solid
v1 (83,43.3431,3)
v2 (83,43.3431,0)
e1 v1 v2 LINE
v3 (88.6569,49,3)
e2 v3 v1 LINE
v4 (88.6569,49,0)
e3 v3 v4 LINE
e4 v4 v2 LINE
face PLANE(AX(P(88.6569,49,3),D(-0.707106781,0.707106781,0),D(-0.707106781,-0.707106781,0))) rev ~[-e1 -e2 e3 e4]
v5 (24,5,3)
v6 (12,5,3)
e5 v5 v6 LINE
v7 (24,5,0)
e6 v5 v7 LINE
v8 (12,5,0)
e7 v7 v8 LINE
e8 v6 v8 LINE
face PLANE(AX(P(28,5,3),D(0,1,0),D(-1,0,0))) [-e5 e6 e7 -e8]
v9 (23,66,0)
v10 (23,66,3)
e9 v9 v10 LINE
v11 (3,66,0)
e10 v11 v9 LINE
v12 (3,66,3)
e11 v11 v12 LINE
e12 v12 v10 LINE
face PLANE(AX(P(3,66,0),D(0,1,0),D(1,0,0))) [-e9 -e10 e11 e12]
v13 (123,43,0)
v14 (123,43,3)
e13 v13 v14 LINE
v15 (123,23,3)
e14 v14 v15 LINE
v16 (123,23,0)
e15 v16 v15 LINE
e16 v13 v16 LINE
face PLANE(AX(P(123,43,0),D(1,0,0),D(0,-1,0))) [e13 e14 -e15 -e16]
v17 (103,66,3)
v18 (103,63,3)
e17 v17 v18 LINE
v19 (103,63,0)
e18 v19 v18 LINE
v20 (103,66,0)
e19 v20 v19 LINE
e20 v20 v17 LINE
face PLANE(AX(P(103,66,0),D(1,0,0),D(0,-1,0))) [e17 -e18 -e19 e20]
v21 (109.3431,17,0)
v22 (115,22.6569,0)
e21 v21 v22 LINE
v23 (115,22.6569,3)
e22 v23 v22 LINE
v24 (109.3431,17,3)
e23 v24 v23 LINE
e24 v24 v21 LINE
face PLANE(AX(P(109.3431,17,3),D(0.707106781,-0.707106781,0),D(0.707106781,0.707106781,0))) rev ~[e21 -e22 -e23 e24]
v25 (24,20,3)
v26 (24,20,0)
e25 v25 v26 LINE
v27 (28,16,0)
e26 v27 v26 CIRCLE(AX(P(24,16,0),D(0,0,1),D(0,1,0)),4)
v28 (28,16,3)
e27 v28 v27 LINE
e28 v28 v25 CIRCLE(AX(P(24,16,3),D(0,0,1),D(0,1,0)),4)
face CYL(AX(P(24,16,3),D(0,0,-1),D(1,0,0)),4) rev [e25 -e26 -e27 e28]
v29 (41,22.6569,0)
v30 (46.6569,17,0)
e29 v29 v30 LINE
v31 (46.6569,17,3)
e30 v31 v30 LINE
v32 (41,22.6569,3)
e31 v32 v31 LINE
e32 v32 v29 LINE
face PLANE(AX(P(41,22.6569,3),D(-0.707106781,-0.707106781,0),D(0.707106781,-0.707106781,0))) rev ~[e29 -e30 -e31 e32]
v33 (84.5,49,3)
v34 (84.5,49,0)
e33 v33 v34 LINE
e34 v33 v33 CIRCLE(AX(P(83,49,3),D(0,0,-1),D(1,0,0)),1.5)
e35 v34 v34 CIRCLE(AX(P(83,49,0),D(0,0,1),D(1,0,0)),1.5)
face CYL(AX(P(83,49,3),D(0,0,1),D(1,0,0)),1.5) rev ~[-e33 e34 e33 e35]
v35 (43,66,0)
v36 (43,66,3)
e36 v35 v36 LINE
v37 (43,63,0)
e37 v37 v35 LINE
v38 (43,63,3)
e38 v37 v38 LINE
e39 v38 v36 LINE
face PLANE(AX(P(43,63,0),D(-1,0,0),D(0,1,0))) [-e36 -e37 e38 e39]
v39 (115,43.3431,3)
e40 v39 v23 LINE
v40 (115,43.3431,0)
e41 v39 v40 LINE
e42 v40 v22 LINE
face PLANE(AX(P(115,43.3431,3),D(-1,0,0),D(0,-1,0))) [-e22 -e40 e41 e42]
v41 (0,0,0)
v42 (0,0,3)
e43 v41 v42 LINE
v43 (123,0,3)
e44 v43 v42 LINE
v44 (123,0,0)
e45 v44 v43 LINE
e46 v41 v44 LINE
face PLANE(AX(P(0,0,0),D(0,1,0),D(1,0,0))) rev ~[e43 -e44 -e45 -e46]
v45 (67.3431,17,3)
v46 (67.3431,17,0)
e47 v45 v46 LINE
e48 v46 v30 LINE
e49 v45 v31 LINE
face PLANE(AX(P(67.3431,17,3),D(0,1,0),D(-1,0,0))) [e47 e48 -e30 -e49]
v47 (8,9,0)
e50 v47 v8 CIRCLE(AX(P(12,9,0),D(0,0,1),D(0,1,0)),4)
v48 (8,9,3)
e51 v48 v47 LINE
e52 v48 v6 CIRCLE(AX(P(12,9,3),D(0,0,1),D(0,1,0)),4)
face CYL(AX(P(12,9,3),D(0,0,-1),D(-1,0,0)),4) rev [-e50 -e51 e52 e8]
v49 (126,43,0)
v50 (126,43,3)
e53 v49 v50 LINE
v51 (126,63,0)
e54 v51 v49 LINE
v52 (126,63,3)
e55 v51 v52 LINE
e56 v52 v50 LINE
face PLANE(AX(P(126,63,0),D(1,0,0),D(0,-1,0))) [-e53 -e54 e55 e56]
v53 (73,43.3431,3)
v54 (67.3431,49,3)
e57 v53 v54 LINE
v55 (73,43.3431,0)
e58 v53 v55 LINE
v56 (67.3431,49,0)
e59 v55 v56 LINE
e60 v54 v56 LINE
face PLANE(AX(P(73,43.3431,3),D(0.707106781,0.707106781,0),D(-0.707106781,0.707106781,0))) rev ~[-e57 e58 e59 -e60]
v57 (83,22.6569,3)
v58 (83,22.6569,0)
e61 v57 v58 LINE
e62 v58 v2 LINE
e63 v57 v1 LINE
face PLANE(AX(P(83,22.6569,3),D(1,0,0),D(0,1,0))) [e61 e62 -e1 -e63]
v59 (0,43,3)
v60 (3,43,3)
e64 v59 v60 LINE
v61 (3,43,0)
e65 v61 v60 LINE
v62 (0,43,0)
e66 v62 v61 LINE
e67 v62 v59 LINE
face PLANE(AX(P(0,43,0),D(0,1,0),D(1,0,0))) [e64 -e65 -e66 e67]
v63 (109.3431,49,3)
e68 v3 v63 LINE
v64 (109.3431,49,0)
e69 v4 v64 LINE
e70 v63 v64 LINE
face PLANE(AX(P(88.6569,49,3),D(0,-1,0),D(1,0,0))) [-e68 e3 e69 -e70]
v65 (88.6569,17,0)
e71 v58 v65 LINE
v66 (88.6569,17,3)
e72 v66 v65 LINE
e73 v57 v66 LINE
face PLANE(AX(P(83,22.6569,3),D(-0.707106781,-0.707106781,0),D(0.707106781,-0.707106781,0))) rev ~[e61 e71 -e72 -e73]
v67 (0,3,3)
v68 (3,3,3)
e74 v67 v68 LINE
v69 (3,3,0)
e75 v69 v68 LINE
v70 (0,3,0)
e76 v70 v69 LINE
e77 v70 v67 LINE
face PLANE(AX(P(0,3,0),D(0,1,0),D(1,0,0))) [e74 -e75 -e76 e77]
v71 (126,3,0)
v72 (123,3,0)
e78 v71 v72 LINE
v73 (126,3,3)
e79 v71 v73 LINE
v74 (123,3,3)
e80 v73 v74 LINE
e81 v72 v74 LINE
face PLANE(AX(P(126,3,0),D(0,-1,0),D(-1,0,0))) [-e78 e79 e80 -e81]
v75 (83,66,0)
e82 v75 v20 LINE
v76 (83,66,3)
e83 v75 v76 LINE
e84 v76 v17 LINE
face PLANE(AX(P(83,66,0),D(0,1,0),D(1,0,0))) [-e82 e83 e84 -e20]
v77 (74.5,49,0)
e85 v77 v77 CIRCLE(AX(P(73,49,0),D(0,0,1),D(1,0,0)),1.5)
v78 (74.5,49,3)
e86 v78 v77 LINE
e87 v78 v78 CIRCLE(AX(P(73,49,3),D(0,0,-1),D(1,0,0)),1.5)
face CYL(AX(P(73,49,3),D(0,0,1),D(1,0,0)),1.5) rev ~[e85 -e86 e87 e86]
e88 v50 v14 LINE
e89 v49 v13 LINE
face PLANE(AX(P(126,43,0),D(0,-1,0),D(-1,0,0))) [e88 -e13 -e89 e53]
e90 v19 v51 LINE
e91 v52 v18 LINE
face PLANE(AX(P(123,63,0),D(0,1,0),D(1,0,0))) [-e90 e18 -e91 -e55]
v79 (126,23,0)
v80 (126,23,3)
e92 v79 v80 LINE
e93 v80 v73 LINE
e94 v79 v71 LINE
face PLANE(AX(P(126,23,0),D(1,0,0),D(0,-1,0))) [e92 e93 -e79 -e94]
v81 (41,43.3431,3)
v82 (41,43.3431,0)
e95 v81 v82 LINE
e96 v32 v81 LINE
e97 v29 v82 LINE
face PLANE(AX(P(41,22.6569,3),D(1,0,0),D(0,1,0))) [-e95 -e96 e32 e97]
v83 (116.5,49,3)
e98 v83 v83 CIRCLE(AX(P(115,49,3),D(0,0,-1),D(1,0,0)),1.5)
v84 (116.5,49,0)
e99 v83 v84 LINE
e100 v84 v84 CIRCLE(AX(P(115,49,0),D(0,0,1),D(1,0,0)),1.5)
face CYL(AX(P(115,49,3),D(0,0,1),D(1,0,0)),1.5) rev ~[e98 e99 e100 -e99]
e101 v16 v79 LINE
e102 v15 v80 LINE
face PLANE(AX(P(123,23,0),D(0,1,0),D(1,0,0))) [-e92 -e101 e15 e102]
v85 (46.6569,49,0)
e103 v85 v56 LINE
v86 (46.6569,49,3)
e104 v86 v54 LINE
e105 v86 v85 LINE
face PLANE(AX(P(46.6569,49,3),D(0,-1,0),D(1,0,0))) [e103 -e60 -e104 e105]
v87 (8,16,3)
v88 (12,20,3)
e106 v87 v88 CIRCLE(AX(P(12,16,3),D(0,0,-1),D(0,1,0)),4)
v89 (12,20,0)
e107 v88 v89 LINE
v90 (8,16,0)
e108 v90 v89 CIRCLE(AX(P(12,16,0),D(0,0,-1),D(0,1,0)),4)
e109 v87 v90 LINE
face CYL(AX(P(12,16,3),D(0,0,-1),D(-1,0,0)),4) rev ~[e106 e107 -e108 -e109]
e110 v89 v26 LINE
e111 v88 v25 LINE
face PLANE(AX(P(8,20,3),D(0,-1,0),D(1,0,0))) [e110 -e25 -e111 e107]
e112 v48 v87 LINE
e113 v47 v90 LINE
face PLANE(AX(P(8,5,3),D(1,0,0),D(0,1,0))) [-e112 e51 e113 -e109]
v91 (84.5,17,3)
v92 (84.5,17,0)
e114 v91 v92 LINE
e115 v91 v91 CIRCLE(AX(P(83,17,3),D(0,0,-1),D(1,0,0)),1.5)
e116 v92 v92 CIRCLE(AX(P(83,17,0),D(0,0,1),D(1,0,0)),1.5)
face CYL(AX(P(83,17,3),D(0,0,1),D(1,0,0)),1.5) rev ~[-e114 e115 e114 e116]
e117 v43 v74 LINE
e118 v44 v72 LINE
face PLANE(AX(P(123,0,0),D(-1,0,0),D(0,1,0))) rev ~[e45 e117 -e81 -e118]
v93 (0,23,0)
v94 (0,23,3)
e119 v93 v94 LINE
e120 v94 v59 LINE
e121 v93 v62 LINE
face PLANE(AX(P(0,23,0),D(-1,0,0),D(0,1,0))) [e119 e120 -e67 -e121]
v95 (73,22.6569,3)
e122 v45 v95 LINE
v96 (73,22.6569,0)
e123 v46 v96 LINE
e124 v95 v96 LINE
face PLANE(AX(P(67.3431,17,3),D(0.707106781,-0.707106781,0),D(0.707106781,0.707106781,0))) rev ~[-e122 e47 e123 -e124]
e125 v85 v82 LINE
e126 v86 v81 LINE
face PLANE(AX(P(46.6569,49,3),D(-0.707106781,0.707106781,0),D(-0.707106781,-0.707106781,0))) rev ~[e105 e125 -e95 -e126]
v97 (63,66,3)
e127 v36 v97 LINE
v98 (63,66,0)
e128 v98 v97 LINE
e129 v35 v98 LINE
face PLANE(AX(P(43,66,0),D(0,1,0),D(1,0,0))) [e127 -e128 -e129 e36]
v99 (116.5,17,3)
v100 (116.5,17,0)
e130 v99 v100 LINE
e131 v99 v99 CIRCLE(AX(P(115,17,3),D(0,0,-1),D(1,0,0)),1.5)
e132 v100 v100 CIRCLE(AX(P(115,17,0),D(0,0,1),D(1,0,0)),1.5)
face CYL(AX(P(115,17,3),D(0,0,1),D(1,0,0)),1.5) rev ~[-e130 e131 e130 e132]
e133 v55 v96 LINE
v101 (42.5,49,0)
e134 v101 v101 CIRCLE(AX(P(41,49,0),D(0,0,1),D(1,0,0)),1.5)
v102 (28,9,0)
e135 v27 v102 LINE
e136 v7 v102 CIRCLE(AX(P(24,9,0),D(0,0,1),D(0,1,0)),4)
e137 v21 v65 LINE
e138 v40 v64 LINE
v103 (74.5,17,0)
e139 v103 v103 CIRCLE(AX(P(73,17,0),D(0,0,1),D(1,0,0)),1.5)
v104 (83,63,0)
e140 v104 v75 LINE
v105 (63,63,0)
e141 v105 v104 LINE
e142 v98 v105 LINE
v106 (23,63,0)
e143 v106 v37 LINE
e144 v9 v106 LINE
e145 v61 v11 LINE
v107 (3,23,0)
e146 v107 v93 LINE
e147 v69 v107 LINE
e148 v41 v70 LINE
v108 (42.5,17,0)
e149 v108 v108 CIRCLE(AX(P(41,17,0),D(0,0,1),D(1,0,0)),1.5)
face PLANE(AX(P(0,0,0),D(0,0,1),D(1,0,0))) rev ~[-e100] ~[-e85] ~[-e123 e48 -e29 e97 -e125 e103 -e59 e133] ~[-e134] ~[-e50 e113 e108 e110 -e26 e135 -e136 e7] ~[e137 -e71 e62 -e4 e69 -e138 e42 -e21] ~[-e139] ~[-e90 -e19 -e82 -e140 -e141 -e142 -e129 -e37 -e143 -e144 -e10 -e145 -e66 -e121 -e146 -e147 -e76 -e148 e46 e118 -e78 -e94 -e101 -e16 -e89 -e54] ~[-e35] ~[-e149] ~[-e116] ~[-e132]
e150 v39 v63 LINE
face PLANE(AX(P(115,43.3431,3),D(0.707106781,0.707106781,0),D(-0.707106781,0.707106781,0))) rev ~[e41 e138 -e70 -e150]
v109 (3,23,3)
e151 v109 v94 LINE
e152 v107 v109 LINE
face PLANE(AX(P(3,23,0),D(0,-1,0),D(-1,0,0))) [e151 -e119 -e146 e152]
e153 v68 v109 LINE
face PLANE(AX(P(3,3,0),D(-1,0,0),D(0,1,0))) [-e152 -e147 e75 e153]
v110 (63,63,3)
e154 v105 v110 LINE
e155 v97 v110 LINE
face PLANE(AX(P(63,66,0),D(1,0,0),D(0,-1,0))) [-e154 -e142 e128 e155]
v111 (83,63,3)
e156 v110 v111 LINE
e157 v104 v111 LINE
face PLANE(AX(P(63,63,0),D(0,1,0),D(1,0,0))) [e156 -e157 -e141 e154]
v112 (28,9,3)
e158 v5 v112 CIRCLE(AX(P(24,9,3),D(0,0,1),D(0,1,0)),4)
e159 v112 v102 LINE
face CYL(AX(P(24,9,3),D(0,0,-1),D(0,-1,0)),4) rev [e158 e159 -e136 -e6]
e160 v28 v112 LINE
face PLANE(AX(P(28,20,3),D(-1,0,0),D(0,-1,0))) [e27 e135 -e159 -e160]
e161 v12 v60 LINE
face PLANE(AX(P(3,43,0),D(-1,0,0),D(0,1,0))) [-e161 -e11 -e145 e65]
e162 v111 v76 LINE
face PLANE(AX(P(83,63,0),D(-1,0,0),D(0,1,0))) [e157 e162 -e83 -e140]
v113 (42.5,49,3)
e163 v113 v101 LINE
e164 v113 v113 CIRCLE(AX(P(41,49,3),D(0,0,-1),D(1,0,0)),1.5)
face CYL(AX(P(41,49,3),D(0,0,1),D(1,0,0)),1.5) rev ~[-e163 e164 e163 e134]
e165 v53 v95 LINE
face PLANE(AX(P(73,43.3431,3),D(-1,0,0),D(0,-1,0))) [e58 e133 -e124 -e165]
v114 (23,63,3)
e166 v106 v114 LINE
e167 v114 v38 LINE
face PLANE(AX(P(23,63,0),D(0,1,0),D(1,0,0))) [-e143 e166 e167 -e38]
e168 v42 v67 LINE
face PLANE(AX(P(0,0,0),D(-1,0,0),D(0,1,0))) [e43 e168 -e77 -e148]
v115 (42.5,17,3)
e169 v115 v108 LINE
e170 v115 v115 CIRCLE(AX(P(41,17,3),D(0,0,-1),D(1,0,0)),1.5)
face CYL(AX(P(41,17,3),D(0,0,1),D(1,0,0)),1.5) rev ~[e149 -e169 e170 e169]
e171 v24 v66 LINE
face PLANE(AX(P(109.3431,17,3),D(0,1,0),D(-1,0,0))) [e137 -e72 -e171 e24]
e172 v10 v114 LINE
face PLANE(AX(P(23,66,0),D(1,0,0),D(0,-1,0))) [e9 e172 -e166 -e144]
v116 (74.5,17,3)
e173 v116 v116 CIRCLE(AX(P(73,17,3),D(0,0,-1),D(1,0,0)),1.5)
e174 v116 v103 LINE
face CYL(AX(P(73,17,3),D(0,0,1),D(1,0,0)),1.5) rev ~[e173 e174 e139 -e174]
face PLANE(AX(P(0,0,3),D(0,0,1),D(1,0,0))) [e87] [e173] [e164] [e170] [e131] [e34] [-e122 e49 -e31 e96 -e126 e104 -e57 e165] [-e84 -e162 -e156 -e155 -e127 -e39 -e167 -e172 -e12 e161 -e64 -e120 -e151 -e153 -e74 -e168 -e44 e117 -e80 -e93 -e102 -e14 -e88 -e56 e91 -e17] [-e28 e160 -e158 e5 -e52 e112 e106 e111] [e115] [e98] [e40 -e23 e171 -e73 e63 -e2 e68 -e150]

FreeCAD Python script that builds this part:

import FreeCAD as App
import Part
import Sketcher
Q = App.Units.Quantity


def edges_at(feature, points):
    """Names of the edges that pass closest to the given points."""
    edges = feature.Shape.Edges
    near = lambda p: min(range(len(edges)), key=lambda i: edges[i].distToShape(Part.Vertex(*p))[0])
    return sorted({f"Edge{near(p) + 1}" for p in points})

doc = App.newDocument("Part")
body = doc.addObject("PartDesign::Body", "Body")

# Sketch on XY plane
sketch1 = body.newObject("Sketcher::SketchObject", "Sketch")
sketch1.AttachmentSupport = (doc.getObject("XY_Plane"), [""])
sketch1.MapMode = "FlatFace"
sketch1.addGeometry([
    Part.LineSegment(App.Vector(0, 3, 0), App.Vector(0, 0, 0)),  # 0
    Part.LineSegment(App.Vector(0, 0, 0), App.Vector(123, 0, 0)),  # 1
    Part.LineSegment(App.Vector(123, 0, 0), App.Vector(123, 3, 0)),  # 2
    Part.LineSegment(App.Vector(123, 3, 0), App.Vector(126, 3, 0)),  # 3
    Part.LineSegment(App.Vector(126, 3, 0), App.Vector(126, 23, 0)),  # 4
    Part.LineSegment(App.Vector(126, 23, 0), App.Vector(123, 23, 0)),  # 5
    Part.LineSegment(App.Vector(123, 23, 0), App.Vector(123, 43, 0)),  # 6
    Part.LineSegment(App.Vector(123, 43, 0), App.Vector(126, 43, 0)),  # 7
    Part.LineSegment(App.Vector(126, 43, 0), App.Vector(126, 63, 0)),  # 8
    Part.LineSegment(App.Vector(126, 63, 0), App.Vector(103, 63, 0)),  # 9
    Part.LineSegment(App.Vector(103, 63, 0), App.Vector(103, 66, 0)),  # 10
    Part.LineSegment(App.Vector(103, 66, 0), App.Vector(83, 66, 0)),  # 11
    Part.LineSegment(App.Vector(83, 66, 0), App.Vector(83, 63, 0)),  # 12
    Part.LineSegment(App.Vector(83, 63, 0), App.Vector(63, 63, 0)),  # 13
    Part.LineSegment(App.Vector(63, 63, 0), App.Vector(63, 66, 0)),  # 14
    Part.LineSegment(App.Vector(63, 66, 0), App.Vector(43, 66, 0)),  # 15
    Part.LineSegment(App.Vector(43, 66, 0), App.Vector(43, 63, 0)),  # 16
    Part.LineSegment(App.Vector(43, 63, 0), App.Vector(23, 63, 0)),  # 17
    Part.LineSegment(App.Vector(23, 63, 0), App.Vector(23, 66, 0)),  # 18
    Part.LineSegment(App.Vector(23, 66, 0), App.Vector(3, 66, 0)),  # 19
    Part.LineSegment(App.Vector(3, 66, 0), App.Vector(3, 43, 0)),  # 20
    Part.LineSegment(App.Vector(3, 43, 0), App.Vector(0, 43, 0)),  # 21
    Part.LineSegment(App.Vector(0, 43, 0), App.Vector(0, 23, 0)),  # 22
    Part.LineSegment(App.Vector(0, 23, 0), App.Vector(3, 23, 0)),  # 23
    Part.LineSegment(App.Vector(3, 23, 0), App.Vector(3, 3, 0)),  # 24
    Part.LineSegment(App.Vector(3, 3, 0), App.Vector(0, 3, 0)),  # 25
], False)
sketch1.addConstraint([
    Sketcher.Constraint("Coincident", 0, 2, 1, 1),
    Sketcher.Constraint("Coincident", 1, 2, 2, 1),
    Sketcher.Constraint("Coincident", 2, 2, 3, 1),
    Sketcher.Constraint("Coincident", 3, 2, 4, 1),
    Sketcher.Constraint("Coincident", 4, 2, 5, 1),
    Sketcher.Constraint("Coincident", 5, 2, 6, 1),
    Sketcher.Constraint("Coincident", 6, 2, 7, 1),
    Sketcher.Constraint("Coincident", 7, 2, 8, 1),
    Sketcher.Constraint("Coincident", 8, 2, 9, 1),
    Sketcher.Constraint("Coincident", 9, 2, 10, 1),
    Sketcher.Constraint("Coincident", 10, 2, 11, 1),
    Sketcher.Constraint("Coincident", 11, 2, 12, 1),
    Sketcher.Constraint("Coincident", 12, 2, 13, 1),
    Sketcher.Constraint("Coincident", 13, 2, 14, 1),
    Sketcher.Constraint("Coincident", 14, 2, 15, 1),
    Sketcher.Constraint("Coincident", 15, 2, 16, 1),
    Sketcher.Constraint("Coincident", 16, 2, 17, 1),
    Sketcher.Constraint("Coincident", 17, 2, 18, 1),
    Sketcher.Constraint("Coincident", 18, 2, 19, 1),
    Sketcher.Constraint("Coincident", 19, 2, 20, 1),
    Sketcher.Constraint("Coincident", 20, 2, 21, 1),
    Sketcher.Constraint("Coincident", 21, 2, 22, 1),
    Sketcher.Constraint("Coincident", 22, 2, 23, 1),
    Sketcher.Constraint("Coincident", 23, 2, 24, 1),
    Sketcher.Constraint("Coincident", 24, 2, 25, 1),
    Sketcher.Constraint("Coincident", 25, 2, 0, 1),
    Sketcher.Constraint("Vertical", 0),
    Sketcher.Constraint("Horizontal", 1),
    Sketcher.Constraint("Vertical", 2),
    Sketcher.Constraint("Horizontal", 3),
    Sketcher.Constraint("Vertical", 4),
    Sketcher.Constraint("Horizontal", 5),
    Sketcher.Constraint("Vertical", 6),
    Sketcher.Constraint("Horizontal", 7),
    Sketcher.Constraint("Vertical", 8),
    Sketcher.Constraint("Horizontal", 9),
    Sketcher.Constraint("Vertical", 10),
    Sketcher.Constraint("Horizontal", 11),
    Sketcher.Constraint("Vertical", 12),
    Sketcher.Constraint("Horizontal", 13),
    Sketcher.Constraint("Vertical", 14),
    Sketcher.Constraint("Horizontal", 15),
    Sketcher.Constraint("Vertical", 16),
    Sketcher.Constraint("Horizontal", 17),
    Sketcher.Constraint("Vertical", 18),
    Sketcher.Constraint("Horizontal", 19),
    Sketcher.Constraint("Vertical", 20),
    Sketcher.Constraint("Horizontal", 21),
    Sketcher.Constraint("Vertical", 22),
    Sketcher.Constraint("Horizontal", 23),
    Sketcher.Constraint("Vertical", 24),
    Sketcher.Constraint("Horizontal", 25),
    Sketcher.Constraint("Coincident", 0, 2, -1, 1),
    Sketcher.Constraint("PointOnObject", 21, 2, -2),
    Sketcher.Constraint("Horizontal", 9, 2, 12, 2),
    Sketcher.Constraint("Horizontal", 11, 2, 14, 2),
    Sketcher.Constraint("Horizontal", 13, 2, 16, 2),
    Sketcher.Constraint("Horizontal", 15, 2, 18, 2),
    Sketcher.Constraint("Horizontal", 7, 2, 20, 2),
    Sketcher.Constraint("Horizontal", 5, 2, 22, 2),
    Sketcher.Constraint("Horizontal", 3, 2, 24, 2),
    Sketcher.Constraint("Vertical", 2, 2, 5, 2),
    Sketcher.Constraint("Vertical", 4, 2, 7, 2),
    Sketcher.Constraint("Vertical", 20, 2, 23, 2),
    Sketcher.Constraint("Equal", 11, 13),
    Sketcher.Constraint("Equal", 13, 15),
    Sketcher.Constraint("Equal", 15, 17),
    Sketcher.Constraint("Equal", 17, 19),
    Sketcher.Constraint("Equal", 7, 21),
    Sketcher.Constraint("Equal", 25, 0),
    Sketcher.Constraint("Equal", 19, 4),
    Sketcher.Constraint("Equal", 4, 6),
    Sketcher.Constraint("Equal", 6, 8),
    Sketcher.Constraint("Equal", 2, 10),
    Sketcher.Constraint("Equal", 9, 20),
    Sketcher.Constraint("DistanceX", 3, 1, 3, 2, Q("3 mm")),
    Sketcher.Constraint("DistanceX", 11, 2, 11, 1, Q("20 mm")),
])
pad1 = body.newObject("PartDesign::Pad", "Pad")
pad1.Profile = sketch1
pad1.Length = 3

# Sketch on XY plane
sketch2 = body.newObject("Sketcher::SketchObject", "Sketch001")
sketch2.AttachmentSupport = (doc.getObject("XY_Plane"), [""])
sketch2.MapMode = "FlatFace"
sketch2.AttachmentOffset = App.Placement(App.Vector(0, 0, 3), App.Rotation())
sketch2.addGeometry([
    Part.Circle(App.Vector(83, 49, 0), App.Vector(0, 0, 1), 1.5),  # 0
    Part.LineSegment(App.Vector(109.3, 49, 0), App.Vector(88.7, 49, 0)),  # 1
    Part.LineSegment(App.Vector(88.7, 49, 0), App.Vector(83, 43.3, 0)),  # 2
    Part.LineSegment(App.Vector(83, 43.3, 0), App.Vector(83, 22.7, 0)),  # 3
    Part.LineSegment(App.Vector(83, 22.7, 0), App.Vector(88.7, 17, 0)),  # 4
    Part.LineSegment(App.Vector(88.7, 17, 0), App.Vector(109.3, 17, 0)),  # 5
    Part.LineSegment(App.Vector(109.3, 17, 0), App.Vector(115, 22.7, 0)),  # 6
    Part.LineSegment(App.Vector(115, 22.7, 0), App.Vector(115, 43.3, 0)),  # 7
    Part.LineSegment(App.Vector(115, 43.3, 0), App.Vector(109.3, 49, 0)),  # 8
    Part.Circle(App.Vector(115, 49, 0), App.Vector(0, 0, 1), 1.5),  # 9
    Part.Circle(App.Vector(83, 17, 0), App.Vector(0, 0, 1), 1.5),  # 10
    Part.Circle(App.Vector(115, 17, 0), App.Vector(0, 0, 1), 1.5),  # 11
], False)
sketch2.addConstraint([
    Sketcher.Constraint("Coincident", 1, 2, 2, 1),
    Sketcher.Constraint("Coincident", 2, 2, 3, 1),
    Sketcher.Constraint("Coincident", 3, 2, 4, 1),
    Sketcher.Constraint("Coincident", 4, 2, 5, 1),
    Sketcher.Constraint("Coincident", 5, 2, 6, 1),
    Sketcher.Constraint("Coincident", 6, 2, 7, 1),
    Sketcher.Constraint("Coincident", 7, 2, 8, 1),
    Sketcher.Constraint("Coincident", 8, 2, 1, 1),
    Sketcher.Constraint("Horizontal", 1),
    Sketcher.Constraint("Vertical", 3),
    Sketcher.Constraint("Horizontal", 5),
    Sketcher.Constraint("Vertical", 7),
    Sketcher.Constraint("Equal", 0, 9),
    Sketcher.Constraint("Equal", 9, 10),
    Sketcher.Constraint("Equal", 10, 11),
    Sketcher.Constraint("Perpendicular", 2, 4),
    Sketcher.Constraint("Perpendicular", 4, 6),
    Sketcher.Constraint("Perpendicular", 6, 8),
    Sketcher.Constraint("Horizontal", 0, 3, 9, 3),
    Sketcher.Constraint("Horizontal", 10, 3, 11, 3),
    Sketcher.Constraint("Horizontal", 9, 3, 1, 2),
    Sketcher.Constraint("Horizontal", 11, 3, 4, 2),
    Sketcher.Constraint("Horizontal", 3, 2, 6, 2),
    Sketcher.Constraint("Horizontal", 2, 2, 7, 2),
    Sketcher.Constraint("Vertical", 0, 3, 10, 3),
    Sketcher.Constraint("Vertical", 9, 3, 11, 3),
    Sketcher.Constraint("Vertical", 10, 3, 2, 2),
    Sketcher.Constraint("Vertical", 1, 2, 4, 2),
    Sketcher.Constraint("Vertical", 11, 3, 6, 2),
    Sketcher.Constraint("Vertical", 5, 2, 8, 2),
    Sketcher.Constraint("Equal", 5, 3),
    Sketcher.Constraint("Diameter", 0, Q("3 mm")),
    Sketcher.Constraint("Distance", 2, Q("8 mm")),
    Sketcher.Constraint("DistanceX", 0, 3, 9, 3, Q("32 mm")),
    Sketcher.Constraint("DistanceX", -1, 1, 0, 3, Q("83 mm")),
    Sketcher.Constraint("DistanceY", -1, 1, 0, 3, Q("49 mm")),
])
pocket1 = body.newObject("PartDesign::Pocket", "Pocket")
pocket1.Profile = sketch2
pocket1.Type = "ThroughAll"
doc.recompute()

linearpattern = body.newObject("PartDesign::LinearPattern", "LinearPattern")
linearpattern.Originals = [pocket1]
linearpattern.Direction = (doc.getObject("X_Axis"), [""])
linearpattern.Mode = "offset"
linearpattern.Offset = 42
linearpattern.Occurrences = 2
linearpattern.Reversed = True
body.Tip = linearpattern

# Sketch on XY plane
sketch3 = body.newObject("Sketcher::SketchObject", "Sketch002")
sketch3.AttachmentSupport = (doc.getObject("XY_Plane"), [""])
sketch3.MapMode = "FlatFace"
sketch3.AttachmentOffset = App.Placement(App.Vector(0, 0, 3), App.Rotation())
sketch3.addGeometry([
    Part.LineSegment(App.Vector(28, 20, 0), App.Vector(8, 20, 0)),
    Part.LineSegment(App.Vector(8, 20, 0), App.Vector(8, 5, 0)),
    Part.LineSegment(App.Vector(8, 5, 0), App.Vector(28, 5, 0)),
    Part.LineSegment(App.Vector(28, 5, 0), App.Vector(28, 20, 0)),
], False)
sketch3.addConstraint([
    Sketcher.Constraint("Coincident", 0, 2, 1, 1),
    Sketcher.Constraint("Coincident", 1, 2, 2, 1),
    Sketcher.Constraint("Coincident", 2, 2, 3, 1),
    Sketcher.Constraint("Coincident", 3, 2, 0, 1),
    Sketcher.Constraint("Horizontal", 0),
    Sketcher.Constraint("Vertical", 1),
    Sketcher.Constraint("Horizontal", 2),
    Sketcher.Constraint("Vertical", 3),
    Sketcher.Constraint("DistanceX", 0, 2, 0, 1, Q("20 mm")),
    Sketcher.Constraint("DistanceY", 1, 2, 1, 1, Q("15 mm")),
    Sketcher.Constraint("DistanceY", -1, 1, 0, 2, Q("20 mm")),
    Sketcher.Constraint("DistanceX", -1, 1, 0, 2, Q("8 mm")),
])
pocket2 = body.newObject("PartDesign::Pocket", "Pocket001")
pocket2.Profile = sketch3
pocket2.Type = "ThroughAll"
doc.recompute()

fillet = body.newObject("PartDesign::Fillet", "Fillet")
fillet.Base = (pocket2, edges_at(pocket2, [
    (28, 5, 1.5),
    (28, 20, 1.5),
    (8, 20, 1.5),
    (8, 5, 1.5),
]))
fillet.Radius = 4

doc.recompute()
